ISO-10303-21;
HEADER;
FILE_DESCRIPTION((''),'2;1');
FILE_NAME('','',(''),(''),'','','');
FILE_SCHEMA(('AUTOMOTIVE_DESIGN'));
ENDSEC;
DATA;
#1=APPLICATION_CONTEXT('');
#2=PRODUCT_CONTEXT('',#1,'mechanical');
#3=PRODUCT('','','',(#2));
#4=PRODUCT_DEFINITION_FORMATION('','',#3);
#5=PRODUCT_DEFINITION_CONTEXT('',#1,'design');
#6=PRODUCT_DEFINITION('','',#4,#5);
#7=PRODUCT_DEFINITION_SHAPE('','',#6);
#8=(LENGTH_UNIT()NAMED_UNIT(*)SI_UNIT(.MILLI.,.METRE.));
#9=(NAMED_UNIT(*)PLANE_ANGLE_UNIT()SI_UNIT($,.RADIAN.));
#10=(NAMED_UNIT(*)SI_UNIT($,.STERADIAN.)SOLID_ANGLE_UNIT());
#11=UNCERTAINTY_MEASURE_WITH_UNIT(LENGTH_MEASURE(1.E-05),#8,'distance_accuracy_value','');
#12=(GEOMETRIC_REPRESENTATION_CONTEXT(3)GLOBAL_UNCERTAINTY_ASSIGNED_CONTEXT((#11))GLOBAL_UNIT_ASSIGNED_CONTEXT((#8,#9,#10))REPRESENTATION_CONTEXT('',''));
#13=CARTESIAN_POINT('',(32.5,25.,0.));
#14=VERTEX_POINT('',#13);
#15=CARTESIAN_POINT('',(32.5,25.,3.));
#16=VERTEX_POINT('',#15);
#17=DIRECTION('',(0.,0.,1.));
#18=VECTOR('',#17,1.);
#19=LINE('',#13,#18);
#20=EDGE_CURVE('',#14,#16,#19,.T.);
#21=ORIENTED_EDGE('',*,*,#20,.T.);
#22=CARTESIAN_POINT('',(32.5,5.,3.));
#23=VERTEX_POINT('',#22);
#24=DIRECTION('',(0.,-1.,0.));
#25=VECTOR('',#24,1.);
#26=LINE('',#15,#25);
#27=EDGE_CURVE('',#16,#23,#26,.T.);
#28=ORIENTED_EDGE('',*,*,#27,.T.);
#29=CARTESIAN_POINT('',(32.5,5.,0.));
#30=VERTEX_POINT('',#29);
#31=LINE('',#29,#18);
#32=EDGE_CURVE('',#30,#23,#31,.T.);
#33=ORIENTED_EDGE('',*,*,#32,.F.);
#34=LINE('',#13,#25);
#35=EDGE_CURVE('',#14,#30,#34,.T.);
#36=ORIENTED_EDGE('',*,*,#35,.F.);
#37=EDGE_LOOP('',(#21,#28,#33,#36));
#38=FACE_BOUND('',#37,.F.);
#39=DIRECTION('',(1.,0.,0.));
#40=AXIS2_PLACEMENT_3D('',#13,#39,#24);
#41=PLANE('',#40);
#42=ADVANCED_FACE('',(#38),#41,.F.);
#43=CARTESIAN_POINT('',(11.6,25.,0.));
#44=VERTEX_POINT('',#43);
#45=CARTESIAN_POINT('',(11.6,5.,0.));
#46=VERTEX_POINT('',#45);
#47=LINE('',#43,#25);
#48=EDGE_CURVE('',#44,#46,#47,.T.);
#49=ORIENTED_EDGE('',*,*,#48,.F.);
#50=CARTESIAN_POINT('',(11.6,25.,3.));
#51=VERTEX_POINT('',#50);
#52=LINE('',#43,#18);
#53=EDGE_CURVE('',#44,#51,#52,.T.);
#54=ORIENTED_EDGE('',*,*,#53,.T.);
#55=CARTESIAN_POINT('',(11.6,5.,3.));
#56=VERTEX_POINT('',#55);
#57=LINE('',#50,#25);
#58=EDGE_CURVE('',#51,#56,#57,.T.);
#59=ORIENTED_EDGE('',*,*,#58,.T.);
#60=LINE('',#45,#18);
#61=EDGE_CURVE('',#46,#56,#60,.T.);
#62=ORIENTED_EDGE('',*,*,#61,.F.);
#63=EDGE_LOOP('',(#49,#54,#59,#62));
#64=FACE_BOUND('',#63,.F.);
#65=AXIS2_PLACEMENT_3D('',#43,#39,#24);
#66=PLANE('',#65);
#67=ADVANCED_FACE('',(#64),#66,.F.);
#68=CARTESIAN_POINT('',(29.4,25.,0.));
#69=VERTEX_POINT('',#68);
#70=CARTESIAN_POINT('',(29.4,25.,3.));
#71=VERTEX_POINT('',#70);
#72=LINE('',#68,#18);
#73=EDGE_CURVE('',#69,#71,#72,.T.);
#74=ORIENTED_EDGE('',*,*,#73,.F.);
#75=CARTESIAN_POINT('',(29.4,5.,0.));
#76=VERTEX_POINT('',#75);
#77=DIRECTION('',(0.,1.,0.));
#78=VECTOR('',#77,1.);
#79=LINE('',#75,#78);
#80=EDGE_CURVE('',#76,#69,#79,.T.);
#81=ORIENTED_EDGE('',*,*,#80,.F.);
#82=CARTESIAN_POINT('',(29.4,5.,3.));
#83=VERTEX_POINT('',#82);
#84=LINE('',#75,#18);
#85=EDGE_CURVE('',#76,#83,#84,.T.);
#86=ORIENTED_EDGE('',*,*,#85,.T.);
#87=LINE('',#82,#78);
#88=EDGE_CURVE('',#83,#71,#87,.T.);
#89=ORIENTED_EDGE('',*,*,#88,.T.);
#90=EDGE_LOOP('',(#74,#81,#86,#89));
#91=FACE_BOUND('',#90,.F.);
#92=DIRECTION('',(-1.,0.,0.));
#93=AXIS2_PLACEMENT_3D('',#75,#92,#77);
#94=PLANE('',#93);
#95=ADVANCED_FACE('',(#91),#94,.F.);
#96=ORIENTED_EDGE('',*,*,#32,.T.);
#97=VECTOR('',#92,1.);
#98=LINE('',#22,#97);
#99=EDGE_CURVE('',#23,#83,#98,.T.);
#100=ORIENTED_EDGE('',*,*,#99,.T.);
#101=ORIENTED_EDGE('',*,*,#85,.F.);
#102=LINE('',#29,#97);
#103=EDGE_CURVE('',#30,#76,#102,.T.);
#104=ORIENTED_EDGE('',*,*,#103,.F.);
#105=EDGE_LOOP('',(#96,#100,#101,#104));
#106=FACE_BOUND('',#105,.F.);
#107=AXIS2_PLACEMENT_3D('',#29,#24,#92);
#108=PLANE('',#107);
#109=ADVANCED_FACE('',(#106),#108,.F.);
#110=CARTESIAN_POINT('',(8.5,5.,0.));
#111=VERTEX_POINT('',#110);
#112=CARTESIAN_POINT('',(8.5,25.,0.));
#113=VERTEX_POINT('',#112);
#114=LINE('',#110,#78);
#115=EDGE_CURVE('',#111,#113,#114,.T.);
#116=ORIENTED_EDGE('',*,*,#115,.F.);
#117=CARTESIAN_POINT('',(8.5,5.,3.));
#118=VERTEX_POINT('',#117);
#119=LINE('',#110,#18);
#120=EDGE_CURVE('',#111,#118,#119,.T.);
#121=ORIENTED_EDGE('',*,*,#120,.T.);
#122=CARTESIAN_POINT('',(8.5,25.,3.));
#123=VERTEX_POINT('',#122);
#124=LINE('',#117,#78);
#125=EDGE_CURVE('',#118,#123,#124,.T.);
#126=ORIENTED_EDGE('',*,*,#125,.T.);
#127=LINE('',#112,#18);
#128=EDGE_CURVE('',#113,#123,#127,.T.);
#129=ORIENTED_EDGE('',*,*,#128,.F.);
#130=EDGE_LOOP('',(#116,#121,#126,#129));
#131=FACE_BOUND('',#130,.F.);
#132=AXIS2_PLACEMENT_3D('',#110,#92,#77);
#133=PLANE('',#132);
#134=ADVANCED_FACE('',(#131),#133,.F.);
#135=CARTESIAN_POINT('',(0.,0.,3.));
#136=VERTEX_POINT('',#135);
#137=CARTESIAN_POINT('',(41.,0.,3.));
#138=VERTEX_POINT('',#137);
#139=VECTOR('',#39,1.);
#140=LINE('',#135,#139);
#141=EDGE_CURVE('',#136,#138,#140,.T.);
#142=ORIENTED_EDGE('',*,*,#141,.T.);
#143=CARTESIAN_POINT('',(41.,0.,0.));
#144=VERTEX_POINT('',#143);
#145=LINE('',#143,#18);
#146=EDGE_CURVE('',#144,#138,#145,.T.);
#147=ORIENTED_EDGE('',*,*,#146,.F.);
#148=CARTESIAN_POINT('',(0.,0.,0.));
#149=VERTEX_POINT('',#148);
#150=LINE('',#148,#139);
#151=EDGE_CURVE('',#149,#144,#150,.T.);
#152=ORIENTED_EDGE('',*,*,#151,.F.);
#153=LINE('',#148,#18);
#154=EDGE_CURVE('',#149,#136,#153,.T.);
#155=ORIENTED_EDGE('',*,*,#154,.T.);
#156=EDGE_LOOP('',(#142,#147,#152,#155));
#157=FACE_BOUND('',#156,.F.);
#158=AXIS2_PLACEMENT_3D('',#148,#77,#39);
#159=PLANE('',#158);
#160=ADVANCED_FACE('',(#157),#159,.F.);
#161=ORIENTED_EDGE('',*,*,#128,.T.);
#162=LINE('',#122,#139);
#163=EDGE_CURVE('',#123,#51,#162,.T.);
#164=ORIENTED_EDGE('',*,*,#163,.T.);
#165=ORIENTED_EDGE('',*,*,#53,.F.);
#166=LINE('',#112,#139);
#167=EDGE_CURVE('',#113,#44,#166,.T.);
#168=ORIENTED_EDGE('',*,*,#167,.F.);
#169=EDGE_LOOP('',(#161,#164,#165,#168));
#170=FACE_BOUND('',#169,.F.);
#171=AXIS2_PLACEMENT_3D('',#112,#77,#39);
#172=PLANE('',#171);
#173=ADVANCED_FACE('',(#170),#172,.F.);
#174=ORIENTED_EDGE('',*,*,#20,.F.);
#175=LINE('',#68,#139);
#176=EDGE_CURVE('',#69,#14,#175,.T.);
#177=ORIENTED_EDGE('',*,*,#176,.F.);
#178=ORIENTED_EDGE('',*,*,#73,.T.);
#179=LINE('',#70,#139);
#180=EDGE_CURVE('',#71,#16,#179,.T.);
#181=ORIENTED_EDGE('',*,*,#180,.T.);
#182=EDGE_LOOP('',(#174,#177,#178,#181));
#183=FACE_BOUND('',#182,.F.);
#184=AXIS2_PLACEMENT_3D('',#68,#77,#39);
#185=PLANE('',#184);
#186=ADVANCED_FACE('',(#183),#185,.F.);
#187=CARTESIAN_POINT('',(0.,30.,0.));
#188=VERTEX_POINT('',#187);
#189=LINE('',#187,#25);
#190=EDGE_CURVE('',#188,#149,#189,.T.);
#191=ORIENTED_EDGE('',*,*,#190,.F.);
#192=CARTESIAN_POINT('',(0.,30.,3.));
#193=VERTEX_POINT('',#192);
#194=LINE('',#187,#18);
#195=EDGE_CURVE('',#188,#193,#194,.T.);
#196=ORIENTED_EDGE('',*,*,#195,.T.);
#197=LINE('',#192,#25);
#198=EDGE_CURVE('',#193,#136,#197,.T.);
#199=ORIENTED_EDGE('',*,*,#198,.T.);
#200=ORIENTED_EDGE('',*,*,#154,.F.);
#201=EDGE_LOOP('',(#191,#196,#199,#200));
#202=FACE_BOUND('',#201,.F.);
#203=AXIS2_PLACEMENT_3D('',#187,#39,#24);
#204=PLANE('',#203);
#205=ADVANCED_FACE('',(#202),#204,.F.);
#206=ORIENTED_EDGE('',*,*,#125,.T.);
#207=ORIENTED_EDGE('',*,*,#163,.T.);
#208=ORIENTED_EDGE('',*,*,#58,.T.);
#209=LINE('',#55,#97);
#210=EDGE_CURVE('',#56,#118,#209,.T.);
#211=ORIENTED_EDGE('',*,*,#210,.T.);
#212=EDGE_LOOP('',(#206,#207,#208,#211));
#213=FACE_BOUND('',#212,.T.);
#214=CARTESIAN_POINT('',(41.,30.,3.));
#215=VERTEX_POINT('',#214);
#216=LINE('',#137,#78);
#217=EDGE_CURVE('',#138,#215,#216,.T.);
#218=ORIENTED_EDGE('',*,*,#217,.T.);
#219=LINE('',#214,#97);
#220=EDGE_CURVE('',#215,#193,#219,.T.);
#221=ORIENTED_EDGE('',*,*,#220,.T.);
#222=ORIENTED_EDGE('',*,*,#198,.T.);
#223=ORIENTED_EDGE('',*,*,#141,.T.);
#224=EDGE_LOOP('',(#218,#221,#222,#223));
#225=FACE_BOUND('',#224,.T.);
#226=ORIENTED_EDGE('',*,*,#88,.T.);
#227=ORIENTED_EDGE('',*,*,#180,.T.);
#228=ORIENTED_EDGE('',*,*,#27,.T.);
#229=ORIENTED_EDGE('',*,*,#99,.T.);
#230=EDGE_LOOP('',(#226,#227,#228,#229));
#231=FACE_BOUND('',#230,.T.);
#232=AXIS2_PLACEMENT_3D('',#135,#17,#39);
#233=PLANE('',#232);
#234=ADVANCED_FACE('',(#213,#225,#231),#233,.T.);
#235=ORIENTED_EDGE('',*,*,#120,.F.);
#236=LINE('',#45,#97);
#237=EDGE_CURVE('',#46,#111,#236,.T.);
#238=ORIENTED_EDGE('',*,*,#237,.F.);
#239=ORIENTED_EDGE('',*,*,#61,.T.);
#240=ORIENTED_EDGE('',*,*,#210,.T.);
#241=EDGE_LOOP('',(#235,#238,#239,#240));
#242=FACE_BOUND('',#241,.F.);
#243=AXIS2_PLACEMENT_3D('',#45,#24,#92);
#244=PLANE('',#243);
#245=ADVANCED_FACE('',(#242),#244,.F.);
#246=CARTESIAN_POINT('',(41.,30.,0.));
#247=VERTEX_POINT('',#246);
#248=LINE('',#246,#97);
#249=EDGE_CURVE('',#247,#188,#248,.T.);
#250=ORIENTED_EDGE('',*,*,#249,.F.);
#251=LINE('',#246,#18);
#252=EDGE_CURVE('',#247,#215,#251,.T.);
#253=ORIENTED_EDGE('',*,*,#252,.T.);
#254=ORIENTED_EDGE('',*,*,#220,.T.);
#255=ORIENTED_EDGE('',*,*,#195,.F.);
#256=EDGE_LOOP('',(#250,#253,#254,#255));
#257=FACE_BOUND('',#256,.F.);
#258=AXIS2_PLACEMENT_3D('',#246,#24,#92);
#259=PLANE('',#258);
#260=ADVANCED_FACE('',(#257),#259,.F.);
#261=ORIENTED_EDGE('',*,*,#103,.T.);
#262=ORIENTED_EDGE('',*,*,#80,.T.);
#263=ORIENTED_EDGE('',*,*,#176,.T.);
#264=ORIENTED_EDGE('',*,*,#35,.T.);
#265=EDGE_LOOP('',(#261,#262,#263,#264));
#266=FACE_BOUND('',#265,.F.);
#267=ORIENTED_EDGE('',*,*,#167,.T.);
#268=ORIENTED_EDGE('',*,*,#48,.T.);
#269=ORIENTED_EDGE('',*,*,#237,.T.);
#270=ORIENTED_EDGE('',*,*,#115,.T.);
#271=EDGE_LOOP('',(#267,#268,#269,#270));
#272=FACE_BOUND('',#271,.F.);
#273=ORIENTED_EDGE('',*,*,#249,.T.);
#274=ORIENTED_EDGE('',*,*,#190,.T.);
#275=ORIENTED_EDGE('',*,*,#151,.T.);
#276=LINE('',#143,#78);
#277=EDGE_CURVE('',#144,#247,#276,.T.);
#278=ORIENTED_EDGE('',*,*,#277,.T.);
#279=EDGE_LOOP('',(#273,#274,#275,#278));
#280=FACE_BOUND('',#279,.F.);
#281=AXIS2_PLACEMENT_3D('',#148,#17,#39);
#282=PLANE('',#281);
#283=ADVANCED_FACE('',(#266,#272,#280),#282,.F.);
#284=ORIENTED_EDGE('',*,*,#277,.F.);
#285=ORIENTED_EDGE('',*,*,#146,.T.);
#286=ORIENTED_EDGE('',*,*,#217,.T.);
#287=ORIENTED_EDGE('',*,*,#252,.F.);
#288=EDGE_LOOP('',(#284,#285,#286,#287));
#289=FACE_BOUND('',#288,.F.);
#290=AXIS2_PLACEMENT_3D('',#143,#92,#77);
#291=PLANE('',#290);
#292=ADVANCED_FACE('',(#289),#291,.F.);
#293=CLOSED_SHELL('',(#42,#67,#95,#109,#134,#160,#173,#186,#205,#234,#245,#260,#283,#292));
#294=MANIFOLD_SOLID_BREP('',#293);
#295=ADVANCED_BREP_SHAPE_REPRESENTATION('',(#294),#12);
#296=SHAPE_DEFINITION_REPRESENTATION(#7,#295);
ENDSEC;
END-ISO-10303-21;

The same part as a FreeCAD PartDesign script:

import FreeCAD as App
import Part
import Sketcher

doc = App.newDocument("Part")
body = doc.addObject("PartDesign::Body", "Body")

# Sketch on XY plane
sketch1 = body.newObject("Sketcher::SketchObject", "Sketch")
sketch1.AttachmentSupport = (doc.getObject("XY_Plane"), [""])
sketch1.MapMode = "FlatFace"
sketch1.addGeometry(Part.LineSegment(App.Vector(0, 30, 0), App.Vector(0, 0, 0)), False)
sketch1.addGeometry(Part.LineSegment(App.Vector(0, 0, 0), App.Vector(41, 0, 0)), False)
sketch1.addGeometry(Part.LineSegment(App.Vector(41, 0, 0), App.Vector(41, 30, 0)), False)
sketch1.addGeometry(Part.LineSegment(App.Vector(41, 30, 0), App.Vector(0, 30, 0)), False)
sketch1.addGeometry(Part.LineSegment(App.Vector(8.5, 5, 0), App.Vector(8.5, 25, 0)), False)
sketch1.addGeometry(Part.LineSegment(App.Vector(8.5, 25, 0), App.Vector(11.6, 25, 0)), False)
sketch1.addGeometry(Part.LineSegment(App.Vector(11.6, 25, 0), App.Vector(11.6, 5, 0)), False)
sketch1.addGeometry(Part.LineSegment(App.Vector(11.6, 5, 0), App.Vector(8.5, 5, 0)), False)
sketch1.addGeometry(Part.LineSegment(App.Vector(29.4, 5, 0), App.Vector(29.4, 25, 0)), False)
sketch1.addGeometry(Part.LineSegment(App.Vector(29.4, 25, 0), App.Vector(32.5, 25, 0)), False)
sketch1.addGeometry(Part.LineSegment(App.Vector(32.5, 25, 0), App.Vector(32.5, 5, 0)), False)
sketch1.addGeometry(Part.LineSegment(App.Vector(32.5, 5, 0), App.Vector(29.4, 5, 0)), False)
sketch1.addConstraint(Sketcher.Constraint("Coincident", 0, 2, 1, 1))
sketch1.addConstraint(Sketcher.Constraint("Coincident", 1, 2, 2, 1))
sketch1.addConstraint(Sketcher.Constraint("Coincident", 2, 2, 3, 1))
sketch1.addConstraint(Sketcher.Constraint("Coincident", 3, 2, 0, 1))
sketch1.addConstraint(Sketcher.Constraint("Coincident", 4, 2, 5, 1))
sketch1.addConstraint(Sketcher.Constraint("Coincident", 5, 2, 6, 1))
sketch1.addConstraint(Sketcher.Constraint("Coincident", 6, 2, 7, 1))
sketch1.addConstraint(Sketcher.Constraint("Coincident", 7, 2, 4, 1))
sketch1.addConstraint(Sketcher.Constraint("Coincident", 8, 2, 9, 1))
sketch1.addConstraint(Sketcher.Constraint("Coincident", 9, 2, 10, 1))
sketch1.addConstraint(Sketcher.Constraint("Coincident", 10, 2, 11, 1))
sketch1.addConstraint(Sketcher.Constraint("Coincident", 11, 2, 8, 1))
sketch1.addConstraint(Sketcher.Constraint("Vertical", 0))
sketch1.addConstraint(Sketcher.Constraint("Horizontal", 1))
sketch1.addConstraint(Sketcher.Constraint("Vertical", 2))
sketch1.addConstraint(Sketcher.Constraint("Horizontal", 3))
sketch1.addConstraint(Sketcher.Constraint("Vertical", 4))
sketch1.addConstraint(Sketcher.Constraint("Horizontal", 5))
sketch1.addConstraint(Sketcher.Constraint("Vertical", 6))
sketch1.addConstraint(Sketcher.Constraint("Horizontal", 7))
sketch1.addConstraint(Sketcher.Constraint("Vertical", 8))
sketch1.addConstraint(Sketcher.Constraint("Horizontal", 9))
sketch1.addConstraint(Sketcher.Constraint("Vertical", 10))
sketch1.addConstraint(Sketcher.Constraint("Horizontal", 11))
sketch1.addConstraint(Sketcher.Constraint("Coincident", 0, 2, -1, 1))
sketch1.addConstraint(Sketcher.Constraint("Horizontal", 5, 2, 8, 2))
sketch1.addConstraint(Sketcher.Constraint("Horizontal", 7, 2, 10, 2))
sketch1.addConstraint(Sketcher.Constraint("Equal", 7, 9))
sketch1.addConstraint(Sketcher.Constraint("DistanceX", 1, 1, 1, 2, 41.0))
sketch1.addConstraint(Sketcher.Constraint("DistanceY", 0, 2, 0, 1, 30.0))
sketch1.addConstraint(Sketcher.Constraint("DistanceX", 5, 1, 5, 2, 3.1))
sketch1.addConstraint(Sketcher.Constraint("DistanceX", 4, 2, 9, 2, 24.0))
sketch1.addConstraint(Sketcher.Constraint("DistanceY", 4, 1, 4, 2, 20.0))
sketch1.addConstraint(Sketcher.Constraint("DistanceY", -1, 1, 4, 2, 25.0))
sketch1.addConstraint(Sketcher.Constraint("DistanceX", -1, 1, 4, 2, 8.5))
pad1 = body.newObject("PartDesign::Pad", "Pad")
pad1.Profile = sketch1
pad1.Length = 3

doc.recompute()
